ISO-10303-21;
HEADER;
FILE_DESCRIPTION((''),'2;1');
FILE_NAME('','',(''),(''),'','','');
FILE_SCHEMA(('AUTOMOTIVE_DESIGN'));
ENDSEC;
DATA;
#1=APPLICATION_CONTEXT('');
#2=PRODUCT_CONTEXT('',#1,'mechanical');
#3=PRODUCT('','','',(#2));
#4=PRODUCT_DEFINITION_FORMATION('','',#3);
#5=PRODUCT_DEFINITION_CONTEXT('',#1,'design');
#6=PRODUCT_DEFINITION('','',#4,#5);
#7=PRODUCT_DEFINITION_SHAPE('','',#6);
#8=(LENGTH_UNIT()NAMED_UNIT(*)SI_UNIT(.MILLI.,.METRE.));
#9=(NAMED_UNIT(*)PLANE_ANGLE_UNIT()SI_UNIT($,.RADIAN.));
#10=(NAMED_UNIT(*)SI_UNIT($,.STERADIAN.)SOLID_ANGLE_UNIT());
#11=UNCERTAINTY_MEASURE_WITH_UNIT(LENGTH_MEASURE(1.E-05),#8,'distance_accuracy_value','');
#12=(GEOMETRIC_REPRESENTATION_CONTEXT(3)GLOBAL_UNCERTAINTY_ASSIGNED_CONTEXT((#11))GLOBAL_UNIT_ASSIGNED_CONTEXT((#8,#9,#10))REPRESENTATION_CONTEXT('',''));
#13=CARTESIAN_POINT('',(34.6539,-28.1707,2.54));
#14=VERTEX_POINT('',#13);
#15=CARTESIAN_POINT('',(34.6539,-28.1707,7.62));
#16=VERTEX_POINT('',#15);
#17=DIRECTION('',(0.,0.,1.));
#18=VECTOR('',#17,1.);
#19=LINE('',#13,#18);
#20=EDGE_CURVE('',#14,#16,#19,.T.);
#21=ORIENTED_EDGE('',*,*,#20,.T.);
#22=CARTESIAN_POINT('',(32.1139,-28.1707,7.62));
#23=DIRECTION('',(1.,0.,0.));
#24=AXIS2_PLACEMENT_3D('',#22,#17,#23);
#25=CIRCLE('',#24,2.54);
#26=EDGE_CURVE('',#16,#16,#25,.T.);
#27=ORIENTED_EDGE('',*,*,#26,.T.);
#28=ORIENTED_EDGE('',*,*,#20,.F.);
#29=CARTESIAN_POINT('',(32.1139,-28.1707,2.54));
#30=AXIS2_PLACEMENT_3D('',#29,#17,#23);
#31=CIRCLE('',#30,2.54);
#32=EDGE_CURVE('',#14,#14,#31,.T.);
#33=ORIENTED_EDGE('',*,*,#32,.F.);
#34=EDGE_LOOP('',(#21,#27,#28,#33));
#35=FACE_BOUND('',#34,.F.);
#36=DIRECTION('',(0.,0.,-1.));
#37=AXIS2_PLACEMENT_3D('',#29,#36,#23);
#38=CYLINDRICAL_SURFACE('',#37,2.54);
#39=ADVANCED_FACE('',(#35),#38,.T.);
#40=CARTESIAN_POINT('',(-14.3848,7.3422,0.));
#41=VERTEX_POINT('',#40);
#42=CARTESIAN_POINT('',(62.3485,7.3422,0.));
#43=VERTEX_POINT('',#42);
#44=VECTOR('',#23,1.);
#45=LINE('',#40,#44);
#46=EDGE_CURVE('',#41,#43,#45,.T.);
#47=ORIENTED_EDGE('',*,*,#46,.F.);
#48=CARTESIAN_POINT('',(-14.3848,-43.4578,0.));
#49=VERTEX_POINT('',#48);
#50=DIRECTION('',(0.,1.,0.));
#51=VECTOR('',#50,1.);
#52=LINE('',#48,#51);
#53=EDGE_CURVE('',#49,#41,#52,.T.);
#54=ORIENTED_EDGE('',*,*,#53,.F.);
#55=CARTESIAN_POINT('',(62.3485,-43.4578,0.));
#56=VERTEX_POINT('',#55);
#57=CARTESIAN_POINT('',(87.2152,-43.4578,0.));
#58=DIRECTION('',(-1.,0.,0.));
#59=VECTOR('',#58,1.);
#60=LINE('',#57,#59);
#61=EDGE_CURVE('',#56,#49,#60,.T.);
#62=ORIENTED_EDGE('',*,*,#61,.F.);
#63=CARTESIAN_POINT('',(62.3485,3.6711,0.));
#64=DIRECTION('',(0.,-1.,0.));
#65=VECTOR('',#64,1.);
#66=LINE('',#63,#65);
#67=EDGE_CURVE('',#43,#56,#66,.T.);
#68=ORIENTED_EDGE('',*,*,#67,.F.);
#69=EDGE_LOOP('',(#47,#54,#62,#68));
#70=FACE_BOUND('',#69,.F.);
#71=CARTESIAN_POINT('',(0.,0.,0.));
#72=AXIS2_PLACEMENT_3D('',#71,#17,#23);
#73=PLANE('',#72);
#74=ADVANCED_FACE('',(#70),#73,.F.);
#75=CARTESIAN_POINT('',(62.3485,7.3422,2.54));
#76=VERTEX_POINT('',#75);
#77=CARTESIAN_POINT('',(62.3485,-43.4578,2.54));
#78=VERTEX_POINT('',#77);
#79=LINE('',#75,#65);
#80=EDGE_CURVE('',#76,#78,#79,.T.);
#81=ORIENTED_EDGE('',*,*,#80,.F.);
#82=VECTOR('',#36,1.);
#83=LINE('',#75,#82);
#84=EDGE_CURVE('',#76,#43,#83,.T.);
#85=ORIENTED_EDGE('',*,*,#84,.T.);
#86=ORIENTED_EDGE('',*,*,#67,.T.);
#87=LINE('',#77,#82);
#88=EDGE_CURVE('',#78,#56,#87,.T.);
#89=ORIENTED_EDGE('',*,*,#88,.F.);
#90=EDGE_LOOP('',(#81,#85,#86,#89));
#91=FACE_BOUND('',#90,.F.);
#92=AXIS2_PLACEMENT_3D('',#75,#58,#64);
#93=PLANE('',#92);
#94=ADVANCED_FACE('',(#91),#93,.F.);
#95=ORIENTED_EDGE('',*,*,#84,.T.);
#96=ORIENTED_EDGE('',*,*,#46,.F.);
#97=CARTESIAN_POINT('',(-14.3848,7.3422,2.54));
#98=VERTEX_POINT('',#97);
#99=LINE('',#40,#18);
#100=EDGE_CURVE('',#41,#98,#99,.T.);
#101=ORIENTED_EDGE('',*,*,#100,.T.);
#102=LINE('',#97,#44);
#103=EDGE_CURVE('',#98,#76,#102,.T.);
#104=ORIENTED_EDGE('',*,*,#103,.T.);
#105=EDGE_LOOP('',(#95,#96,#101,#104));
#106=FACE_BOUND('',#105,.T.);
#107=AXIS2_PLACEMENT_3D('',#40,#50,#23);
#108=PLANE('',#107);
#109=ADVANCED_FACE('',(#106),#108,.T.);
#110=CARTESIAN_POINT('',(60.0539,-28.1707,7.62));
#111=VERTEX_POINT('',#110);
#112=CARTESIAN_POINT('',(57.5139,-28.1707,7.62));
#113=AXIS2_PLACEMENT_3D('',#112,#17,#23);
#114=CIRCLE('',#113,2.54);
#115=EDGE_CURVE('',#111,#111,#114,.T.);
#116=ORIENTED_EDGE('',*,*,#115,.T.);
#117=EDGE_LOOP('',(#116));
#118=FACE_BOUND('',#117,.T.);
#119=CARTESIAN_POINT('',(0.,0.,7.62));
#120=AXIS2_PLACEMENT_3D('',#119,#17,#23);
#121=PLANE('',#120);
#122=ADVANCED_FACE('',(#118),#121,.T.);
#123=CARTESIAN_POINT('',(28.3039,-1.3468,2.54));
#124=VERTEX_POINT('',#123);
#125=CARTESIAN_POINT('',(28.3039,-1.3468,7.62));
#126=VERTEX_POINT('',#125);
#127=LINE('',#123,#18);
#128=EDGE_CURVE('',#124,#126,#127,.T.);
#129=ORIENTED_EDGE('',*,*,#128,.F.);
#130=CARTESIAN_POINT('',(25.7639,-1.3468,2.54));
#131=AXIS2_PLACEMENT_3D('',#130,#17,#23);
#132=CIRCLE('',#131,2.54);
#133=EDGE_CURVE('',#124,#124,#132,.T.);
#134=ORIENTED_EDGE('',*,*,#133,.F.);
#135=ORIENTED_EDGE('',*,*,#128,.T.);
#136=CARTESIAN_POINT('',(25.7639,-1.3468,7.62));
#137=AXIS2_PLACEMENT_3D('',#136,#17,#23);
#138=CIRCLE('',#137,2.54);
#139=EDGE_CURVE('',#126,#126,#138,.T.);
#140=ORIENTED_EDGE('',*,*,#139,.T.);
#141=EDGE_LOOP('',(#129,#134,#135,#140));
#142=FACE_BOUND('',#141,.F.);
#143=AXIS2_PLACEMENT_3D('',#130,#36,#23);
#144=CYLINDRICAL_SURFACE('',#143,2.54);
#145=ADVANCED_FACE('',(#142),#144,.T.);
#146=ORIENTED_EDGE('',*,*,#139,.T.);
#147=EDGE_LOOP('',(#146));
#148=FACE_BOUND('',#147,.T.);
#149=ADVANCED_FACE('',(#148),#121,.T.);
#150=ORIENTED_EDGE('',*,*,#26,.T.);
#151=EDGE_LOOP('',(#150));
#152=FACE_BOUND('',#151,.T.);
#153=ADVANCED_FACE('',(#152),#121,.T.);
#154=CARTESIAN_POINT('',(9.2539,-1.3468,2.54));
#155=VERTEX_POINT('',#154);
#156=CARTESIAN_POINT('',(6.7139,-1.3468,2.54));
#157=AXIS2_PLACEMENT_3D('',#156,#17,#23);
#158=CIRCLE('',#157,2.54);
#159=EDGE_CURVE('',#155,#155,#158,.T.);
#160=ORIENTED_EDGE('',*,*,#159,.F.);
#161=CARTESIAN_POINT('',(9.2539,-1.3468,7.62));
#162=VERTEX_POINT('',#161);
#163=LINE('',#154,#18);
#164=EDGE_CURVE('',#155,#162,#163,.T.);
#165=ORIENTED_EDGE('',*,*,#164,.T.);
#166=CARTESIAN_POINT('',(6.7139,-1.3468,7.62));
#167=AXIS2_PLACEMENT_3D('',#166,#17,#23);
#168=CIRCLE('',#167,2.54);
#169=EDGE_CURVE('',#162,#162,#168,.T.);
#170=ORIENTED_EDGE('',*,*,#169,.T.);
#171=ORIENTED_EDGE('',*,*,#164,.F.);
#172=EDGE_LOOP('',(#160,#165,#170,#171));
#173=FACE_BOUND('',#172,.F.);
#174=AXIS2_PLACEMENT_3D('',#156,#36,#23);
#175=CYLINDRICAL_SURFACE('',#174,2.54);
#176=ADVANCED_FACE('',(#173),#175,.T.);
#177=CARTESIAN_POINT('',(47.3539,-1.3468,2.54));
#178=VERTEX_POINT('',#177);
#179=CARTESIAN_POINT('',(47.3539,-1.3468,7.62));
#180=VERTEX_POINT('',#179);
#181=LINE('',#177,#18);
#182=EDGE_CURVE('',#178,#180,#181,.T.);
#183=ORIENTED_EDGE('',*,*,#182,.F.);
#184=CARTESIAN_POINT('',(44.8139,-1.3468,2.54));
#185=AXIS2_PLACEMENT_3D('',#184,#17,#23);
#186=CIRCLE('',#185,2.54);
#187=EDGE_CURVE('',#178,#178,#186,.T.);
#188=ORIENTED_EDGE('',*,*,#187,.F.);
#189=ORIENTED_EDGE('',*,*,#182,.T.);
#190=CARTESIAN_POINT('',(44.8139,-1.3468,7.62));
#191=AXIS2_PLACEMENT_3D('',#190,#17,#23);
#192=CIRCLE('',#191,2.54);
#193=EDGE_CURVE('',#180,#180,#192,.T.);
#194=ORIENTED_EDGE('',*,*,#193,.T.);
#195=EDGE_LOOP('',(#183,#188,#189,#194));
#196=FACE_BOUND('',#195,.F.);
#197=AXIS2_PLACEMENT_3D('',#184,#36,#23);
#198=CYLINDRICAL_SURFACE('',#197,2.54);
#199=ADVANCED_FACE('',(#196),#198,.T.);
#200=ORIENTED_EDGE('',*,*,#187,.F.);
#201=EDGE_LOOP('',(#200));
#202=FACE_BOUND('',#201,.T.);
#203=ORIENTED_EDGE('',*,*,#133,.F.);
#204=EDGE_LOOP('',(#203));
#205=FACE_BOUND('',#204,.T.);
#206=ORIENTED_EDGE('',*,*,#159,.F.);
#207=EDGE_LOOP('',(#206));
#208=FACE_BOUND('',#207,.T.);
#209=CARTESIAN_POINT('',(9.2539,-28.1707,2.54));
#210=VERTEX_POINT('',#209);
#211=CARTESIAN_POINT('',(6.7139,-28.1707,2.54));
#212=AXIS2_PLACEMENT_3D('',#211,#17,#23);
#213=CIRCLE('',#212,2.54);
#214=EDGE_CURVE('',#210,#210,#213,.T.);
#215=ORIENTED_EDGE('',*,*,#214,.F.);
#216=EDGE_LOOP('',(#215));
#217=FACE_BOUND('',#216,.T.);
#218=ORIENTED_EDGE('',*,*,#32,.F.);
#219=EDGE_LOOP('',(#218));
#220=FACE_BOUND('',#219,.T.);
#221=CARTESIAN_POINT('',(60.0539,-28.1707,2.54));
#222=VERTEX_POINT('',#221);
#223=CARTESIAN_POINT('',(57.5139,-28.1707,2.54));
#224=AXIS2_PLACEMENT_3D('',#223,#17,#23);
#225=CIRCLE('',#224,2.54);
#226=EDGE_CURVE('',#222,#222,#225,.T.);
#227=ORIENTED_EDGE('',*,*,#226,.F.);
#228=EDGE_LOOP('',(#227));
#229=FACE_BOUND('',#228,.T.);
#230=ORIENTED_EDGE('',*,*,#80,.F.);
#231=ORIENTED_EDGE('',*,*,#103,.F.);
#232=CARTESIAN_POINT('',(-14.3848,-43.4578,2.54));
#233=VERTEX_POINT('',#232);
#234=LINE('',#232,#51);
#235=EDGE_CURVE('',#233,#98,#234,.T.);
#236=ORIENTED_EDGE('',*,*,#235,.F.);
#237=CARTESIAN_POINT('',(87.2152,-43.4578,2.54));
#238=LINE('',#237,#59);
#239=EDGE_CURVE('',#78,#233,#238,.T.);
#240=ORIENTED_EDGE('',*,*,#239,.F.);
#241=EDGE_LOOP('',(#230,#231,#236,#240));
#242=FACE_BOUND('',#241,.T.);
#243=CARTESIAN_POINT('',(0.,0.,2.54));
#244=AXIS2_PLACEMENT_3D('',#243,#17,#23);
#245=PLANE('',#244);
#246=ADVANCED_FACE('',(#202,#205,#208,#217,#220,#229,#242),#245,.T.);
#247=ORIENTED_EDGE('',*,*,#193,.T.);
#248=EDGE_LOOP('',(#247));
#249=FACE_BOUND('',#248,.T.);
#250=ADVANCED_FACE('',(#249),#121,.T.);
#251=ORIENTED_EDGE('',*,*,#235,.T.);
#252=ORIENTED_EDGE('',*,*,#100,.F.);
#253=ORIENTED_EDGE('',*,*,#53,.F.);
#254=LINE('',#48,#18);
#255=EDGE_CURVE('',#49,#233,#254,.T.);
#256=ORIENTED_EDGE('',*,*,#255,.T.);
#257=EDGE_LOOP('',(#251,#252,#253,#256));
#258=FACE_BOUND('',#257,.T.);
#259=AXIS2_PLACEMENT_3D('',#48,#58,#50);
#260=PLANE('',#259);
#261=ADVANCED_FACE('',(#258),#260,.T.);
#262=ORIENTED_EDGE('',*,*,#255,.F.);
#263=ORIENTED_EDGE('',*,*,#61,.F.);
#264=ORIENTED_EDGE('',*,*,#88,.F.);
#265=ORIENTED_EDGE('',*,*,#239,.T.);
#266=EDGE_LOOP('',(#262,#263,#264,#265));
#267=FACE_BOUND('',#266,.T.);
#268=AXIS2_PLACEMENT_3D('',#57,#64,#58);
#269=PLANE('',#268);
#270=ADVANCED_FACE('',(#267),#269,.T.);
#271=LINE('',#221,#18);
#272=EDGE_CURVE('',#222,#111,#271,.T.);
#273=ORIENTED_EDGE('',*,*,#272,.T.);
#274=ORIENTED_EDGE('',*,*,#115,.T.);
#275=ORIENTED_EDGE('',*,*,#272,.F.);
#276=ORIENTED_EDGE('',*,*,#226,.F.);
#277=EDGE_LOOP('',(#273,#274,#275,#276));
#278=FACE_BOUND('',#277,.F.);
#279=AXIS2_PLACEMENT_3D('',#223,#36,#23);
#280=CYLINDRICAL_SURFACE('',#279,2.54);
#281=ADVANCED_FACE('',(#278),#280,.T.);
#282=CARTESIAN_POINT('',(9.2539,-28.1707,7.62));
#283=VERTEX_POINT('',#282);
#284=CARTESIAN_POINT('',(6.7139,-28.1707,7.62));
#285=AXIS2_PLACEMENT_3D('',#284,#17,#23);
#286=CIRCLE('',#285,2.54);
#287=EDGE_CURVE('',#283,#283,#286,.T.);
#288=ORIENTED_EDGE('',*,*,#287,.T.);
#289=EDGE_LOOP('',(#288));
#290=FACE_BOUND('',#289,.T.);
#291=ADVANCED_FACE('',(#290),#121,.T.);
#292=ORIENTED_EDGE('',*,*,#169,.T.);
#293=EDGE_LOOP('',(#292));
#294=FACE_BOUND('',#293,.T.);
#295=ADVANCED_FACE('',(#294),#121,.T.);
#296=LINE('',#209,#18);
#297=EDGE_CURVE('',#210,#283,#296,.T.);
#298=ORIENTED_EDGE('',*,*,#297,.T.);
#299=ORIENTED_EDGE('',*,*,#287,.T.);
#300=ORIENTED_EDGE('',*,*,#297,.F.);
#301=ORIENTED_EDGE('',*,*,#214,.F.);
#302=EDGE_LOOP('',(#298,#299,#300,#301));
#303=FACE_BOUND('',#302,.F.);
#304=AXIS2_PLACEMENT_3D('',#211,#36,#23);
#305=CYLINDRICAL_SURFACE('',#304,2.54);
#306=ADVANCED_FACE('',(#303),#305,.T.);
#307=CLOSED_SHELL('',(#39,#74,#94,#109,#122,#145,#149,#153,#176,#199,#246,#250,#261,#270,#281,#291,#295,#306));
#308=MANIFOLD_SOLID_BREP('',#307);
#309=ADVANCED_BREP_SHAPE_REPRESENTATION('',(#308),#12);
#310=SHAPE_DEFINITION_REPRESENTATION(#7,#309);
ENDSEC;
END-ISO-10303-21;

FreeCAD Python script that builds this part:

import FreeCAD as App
import Part
import Sketcher

V = App.Vector
Q = App.Units.Quantity

doc = App.newDocument("Part")
params = doc.addObject("Spreadsheet::Sheet", "Params")
for row, (alias, value) in enumerate([
    ("sketch1_width", "4 in"),
    ("sketch1_height", "2 in"),
    ("pad1_length", "0.1 in"),
    ("sketch2_diameter", "0.2 in"),
    ("pad2_length", "0.2 in"),
    ("sketch3_height", "2 in"),
    ("sketch3_width", "0.979 in"),
    ("pocket1_length", "0.2 in"),
], start=1):
    params.set(f"A{row}", alias)
    params.set(f"B{row}", "=" + value)
    params.setAlias(f"B{row}", alias)

body = doc.addObject("PartDesign::Body", "Body")

# Sketch on XY plane
sketch1 = body.newObject("Sketcher::SketchObject", "Sketch")
sketch1.AttachmentSupport = (doc.getObject("XY_Plane"), [""])
sketch1.MapMode = "FlatFace"
sketch1.addGeometry(Part.LineSegment(V(87.2152, 7.3422, 0), V(-14.3848, 7.3422, 0)), False)
sketch1.addGeometry(Part.LineSegment(V(-14.3848, 7.3422, 0), V(-14.3848, -43.4578, 0)), False)
sketch1.addGeometry(Part.LineSegment(V(-14.3848, -43.4578, 0), V(87.2152, -43.4578, 0)), False)
sketch1.addGeometry(Part.LineSegment(V(87.2152, -43.4578, 0), V(87.2152, 7.3422, 0)), False)
sketch1.addConstraint(Sketcher.Constraint("Coincident", 0, 2, 1, 1))
sketch1.addConstraint(Sketcher.Constraint("Coincident", 1, 2, 2, 1))
sketch1.addConstraint(Sketcher.Constraint("Coincident", 2, 2, 3, 1))
sketch1.addConstraint(Sketcher.Constraint("Coincident", 3, 2, 0, 1))
sketch1.addConstraint(Sketcher.Constraint("Horizontal", 0))
sketch1.addConstraint(Sketcher.Constraint("Vertical", 1))
sketch1.addConstraint(Sketcher.Constraint("Horizontal", 2))
sketch1.addConstraint(Sketcher.Constraint("Vertical", 3))
sketch1.addConstraint(Sketcher.Constraint("DistanceX", 0, 2, 0, 1, Q("4 in")))
sketch1.addConstraint(Sketcher.Constraint("DistanceY", 1, 2, 1, 1, Q("2 in")))
sketch1.addConstraint(Sketcher.Constraint("DistanceX", 0, 2, -1, 1, Q("14.3848 mm")))
sketch1.addConstraint(Sketcher.Constraint("DistanceY", -1, 1, 0, 2, Q("7.3422 mm")))
sketch1.setExpression("Constraints[8]", "Params.sketch1_width")
sketch1.setExpression("Constraints[9]", "Params.sketch1_height")
pad1 = body.newObject("PartDesign::Pad", "Pad")
pad1.Profile = sketch1
pad1.setExpression("Length", "Params.pad1_length")

# Sketch on XY plane
sketch2 = body.newObject("Sketcher::SketchObject", "Sketch001")
sketch2.AttachmentSupport = (doc.getObject("XY_Plane"), [""])
sketch2.MapMode = "FlatFace"
sketch2.AttachmentOffset = App.Placement(V(0, 0, 0.1 * 25.4), App.Rotation())
sketch2.addGeometry(Part.Circle(V(6.7139, -1.3468, 0), V(0, 0, 1), 2.54), False)
sketch2.addGeometry(Part.Circle(V(25.7639, -1.3468, 0), V(0, 0, 1), 2.54), False)
sketch2.addGeometry(Part.Circle(V(44.8139, -1.3468, 0), V(0, 0, 1), 2.54), False)
sketch2.addGeometry(Part.Circle(V(6.7139, -28.1707, 0), V(0, 0, 1), 2.54), False)
sketch2.addGeometry(Part.Circle(V(32.1139, -28.1707, 0), V(0, 0, 1), 2.54), False)
sketch2.addGeometry(Part.Circle(V(57.5139, -28.1707, 0), V(0, 0, 1), 2.54), False)
sketch2.addConstraint(Sketcher.Constraint("Equal", 0, 1))
sketch2.addConstraint(Sketcher.Constraint("Equal", 1, 2))
sketch2.addConstraint(Sketcher.Constraint("Equal", 2, 3))
sketch2.addConstraint(Sketcher.Constraint("Equal", 3, 4))
sketch2.addConstraint(Sketcher.Constraint("Equal", 4, 5))
sketch2.addConstraint(Sketcher.Constraint("Horizontal", 0, 3, 1, 3))
sketch2.addConstraint(Sketcher.Constraint("Horizontal", 1, 3, 2, 3))
sketch2.addConstraint(Sketcher.Constraint("Horizontal", 3, 3, 4, 3))
sketch2.addConstraint(Sketcher.Constraint("Horizontal", 4, 3, 5, 3))
sketch2.addConstraint(Sketcher.Constraint("Vertical", 0, 3, 3, 3))
sketch2.addConstraint(Sketcher.Constraint("Diameter", 0, Q("0.2 in")))
sketch2.addConstraint(Sketcher.Constraint("DistanceX", 3, 3, 4, 3, Q("1 in")))
sketch2.addConstraint(Sketcher.Constraint("DistanceX", 4, 3, 5, 3, Q("1 in")))
sketch2.addConstraint(Sketcher.Constraint("DistanceX", 0, 3, 1, 3, Q("0.75 in")))
sketch2.addConstraint(Sketcher.Constraint("DistanceX", 1, 3, 2, 3, Q("0.75 in")))
sketch2.addConstraint(Sketcher.Constraint("DistanceX", -1, 1, 0, 3, Q("6.714 mm")))
sketch2.addConstraint(Sketcher.Constraint("DistanceY", 0, 3, -1, 1, Q("1.3468 mm")))
sketch2.addConstraint(Sketcher.Constraint("DistanceY", 3, 3, -1, 1, Q("28.1707 mm")))
sketch2.setExpression("Constraints[10]", "Params.sketch2_diameter")
pad2 = body.newObject("PartDesign::Pad", "Pad001")
pad2.Profile = sketch2
pad2.setExpression("Length", "Params.pad2_length")

# Sketch on XY plane
sketch3 = body.newObject("Sketcher::SketchObject", "Sketch002")
sketch3.AttachmentSupport = (doc.getObject("XY_Plane"), [""])
sketch3.MapMode = "FlatFace"
sketch3.AttachmentOffset = App.Placement(V(0, 0, 0.1 * 25.4), App.Rotation())
sketch3.addGeometry(Part.LineSegment(V(62.3485, -43.4578, 0), V(87.2152, -43.4578, 0)), False)
sketch3.addGeometry(Part.LineSegment(V(87.2152, -43.4578, 0), V(87.2152, 7.3422, 0)), False)
sketch3.addGeometry(Part.LineSegment(V(87.2152, 7.3422, 0), V(62.3485, 7.3422, 0)), False)
sketch3.addGeometry(Part.LineSegment(V(62.3485, 7.3422, 0), V(62.3485, -43.4578, 0)), False)
sketch3.addConstraint(Sketcher.Constraint("Coincident", 0, 2, 1, 1))
sketch3.addConstraint(Sketcher.Constraint("Coincident", 1, 2, 2, 1))
sketch3.addConstraint(Sketcher.Constraint("Coincident", 2, 2, 3, 1))
sketch3.addConstraint(Sketcher.Constraint("Coincident", 3, 2, 0, 1))
sketch3.addConstraint(Sketcher.Constraint("Horizontal", 0))
sketch3.addConstraint(Sketcher.Constraint("Vertical", 1))
sketch3.addConstraint(Sketcher.Constraint("Horizontal", 2))
sketch3.addConstraint(Sketcher.Constraint("Vertical", 3))
sketch3.addConstraint(Sketcher.Constraint("DistanceY", 1, 1, 1, 2, Q("2 in")))
sketch3.addConstraint(Sketcher.Constraint("DistanceX", 0, 1, 0, 2, Q("0.979 in")))
sketch3.addConstraint(Sketcher.Constraint("DistanceX", -1, 1, 0, 2, Q("87.2152 mm")))
sketch3.addConstraint(Sketcher.Constraint("DistanceY", 0, 2, -1, 1, Q("43.4578 mm")))
sketch3.setExpression("Constraints[8]", "Params.sketch3_height")
sketch3.setExpression("Constraints[9]", "Params.sketch3_width")
pocket1 = body.newObject("PartDesign::Pocket", "Pocket")
pocket1.Profile = sketch3
pocket1.setExpression("Length", "Params.pocket1_length")

doc.recompute()
